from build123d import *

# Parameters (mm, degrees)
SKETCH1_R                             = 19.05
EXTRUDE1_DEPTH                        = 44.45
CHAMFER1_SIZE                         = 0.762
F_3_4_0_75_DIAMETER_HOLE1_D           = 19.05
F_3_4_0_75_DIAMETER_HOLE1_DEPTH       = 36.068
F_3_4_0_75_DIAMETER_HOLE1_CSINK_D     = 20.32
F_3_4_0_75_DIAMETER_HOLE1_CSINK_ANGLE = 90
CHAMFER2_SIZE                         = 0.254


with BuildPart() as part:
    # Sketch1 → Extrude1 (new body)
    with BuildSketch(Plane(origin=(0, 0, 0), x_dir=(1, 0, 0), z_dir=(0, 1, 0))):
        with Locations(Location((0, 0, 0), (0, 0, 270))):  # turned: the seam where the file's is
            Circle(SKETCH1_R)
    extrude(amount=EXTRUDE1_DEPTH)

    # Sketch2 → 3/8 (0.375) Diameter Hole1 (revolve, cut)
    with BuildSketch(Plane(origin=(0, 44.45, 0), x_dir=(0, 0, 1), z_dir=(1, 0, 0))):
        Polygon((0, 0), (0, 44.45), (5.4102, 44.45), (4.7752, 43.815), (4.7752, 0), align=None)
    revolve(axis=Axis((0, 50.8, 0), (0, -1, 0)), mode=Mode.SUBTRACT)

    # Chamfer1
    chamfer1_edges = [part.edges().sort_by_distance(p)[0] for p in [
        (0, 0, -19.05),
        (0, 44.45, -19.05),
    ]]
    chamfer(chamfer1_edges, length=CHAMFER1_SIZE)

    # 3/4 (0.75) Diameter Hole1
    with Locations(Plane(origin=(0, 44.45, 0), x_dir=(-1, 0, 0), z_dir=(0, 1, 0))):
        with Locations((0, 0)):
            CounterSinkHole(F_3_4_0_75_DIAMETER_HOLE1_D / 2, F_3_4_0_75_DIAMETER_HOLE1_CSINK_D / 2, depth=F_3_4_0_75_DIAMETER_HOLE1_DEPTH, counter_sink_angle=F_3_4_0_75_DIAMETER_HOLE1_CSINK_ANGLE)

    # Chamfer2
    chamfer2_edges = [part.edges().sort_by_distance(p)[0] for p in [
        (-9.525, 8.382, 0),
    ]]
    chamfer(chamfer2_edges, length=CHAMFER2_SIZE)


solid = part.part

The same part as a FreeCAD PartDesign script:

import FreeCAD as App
import Part
import Sketcher
from FreeCAD import Vector
Q = App.Units.Quantity


def edges_at(feature, points):
    """Names of the edges that pass closest to the given points."""
    edges = feature.Shape.Edges
    near = lambda p: min(range(len(edges)), key=lambda i: edges[i].distToShape(Part.Vertex(*p))[0])
    return sorted({f"Edge{near(p) + 1}" for p in points})


def add_polygon(sketch, points):
    """Adds a closed chain of lines whose ends are joined by coincident constraints."""
    first, n = sketch.GeometryCount, len(points)
    for a, b in zip(points, points[1:] + points[:1]):
        sketch.addGeometry(Part.LineSegment(App.Vector(*a, 0), App.Vector(*b, 0)), False)
    for i in range(n):
        sketch.addConstraint(Sketcher.Constraint("Coincident", first + i, 2, first + (i + 1) % n, 1))

doc = App.newDocument("Part")
body = doc.addObject("PartDesign::Body", "Body")

# Sketch on XZ plane
sketch1 = body.newObject("Sketcher::SketchObject", "Sketch")
sketch1.AttachmentSupport = (doc.getObject("XZ_Plane"), [""])
sketch1.MapMode = "FlatFace"
sketch1.addGeometry(Part.Circle(Vector(0, 0, 0), Vector(0, 0, 1), 19), False)
sketch1.addConstraint([
    Sketcher.Constraint("Coincident", 0, 3, -1, 1),
    Sketcher.Constraint("Diameter", 0, Q("1.5 in")),
])
pad1 = body.newObject("PartDesign::Pad", "Pad")
pad1.Profile = sketch1
pad1.Length = Q("1.75 in")
pad1.Reversed = True

# Sketch on YZ plane
sketch2 = body.newObject("Sketcher::SketchObject", "Sketch001")
sketch2.AttachmentSupport = (doc.getObject("YZ_Plane"), [""])
sketch2.MapMode = "FlatFace"
add_polygon(sketch2, [(0, 0), (44.5, 0), (44.5, 4.8), (0.6, 4.8), (0, 5.4)])  # lines 0-4
sketch2.addConstraint([
    Sketcher.Constraint("Horizontal", 0),
    Sketcher.Constraint("Vertical", 1),
    Sketcher.Constraint("Horizontal", 2),
    Sketcher.Constraint("Vertical", 4),
    Sketcher.Constraint("Coincident", 4, 2, -1, 1),
    Sketcher.Constraint("Angle", 3, Q("135 deg")),
    Sketcher.Constraint("DistanceX", 0, 1, 0, 2, Q("1.75 in")),
    Sketcher.Constraint("DistanceX", 2, 2, 2, 1, Q("1.725 in")),
    Sketcher.Constraint("DistanceY", 1, 1, 1, 2, Q("0.188 in")),
])
groove = body.newObject("PartDesign::Groove", "Groove")
groove.Profile = sketch2
groove.ReferenceAxis = (sketch2, ["H_Axis"])
groove.Angle = 360
doc.recompute()

chamfer = body.newObject("PartDesign::Chamfer", "Chamfer")
chamfer.Base = (groove, edges_at(groove, [(0, 0, -19.05), (0, 44.45, -19.05)]))
chamfer.Size = Q("0.03 in")

# Sketch on XZ plane
sketch3 = body.newObject("Sketcher::SketchObject", "Sketch002")
sketch3.AttachmentSupport = (doc.getObject("XZ_Plane"), [""])
sketch3.MapMode = "FlatFace"
sketch3.AttachmentOffset = App.Placement(Vector(0, 0, -1.75 * 25.4), App.Rotation())
sketch3.addGeometry(Part.Circle(Vector(0, 0, 0), Vector(0, 0, 1), 10), False)
sketch3.addConstraint([
    Sketcher.Constraint("Coincident", 0, 3, -1, 1),
    Sketcher.Constraint("Diameter", 0, Q("0.75 in")),
])
doc.recompute()
hole = body.newObject("PartDesign::Hole", "Hole")
hole.Profile = sketch3
hole.ThreadType = "None"
hole.Diameter = Q("0.75 in")
hole.DepthType = "Dimension"
hole.Depth = Q("1.42 in")
hole.DrillPoint = "Flat"
hole.HoleCutType = "Countersink"
hole.HoleCutDiameter = Q("0.8 in")
hole.HoleCutCountersinkAngle = 90
hole.Reversed = True
doc.recompute()

chamfer2 = body.newObject("PartDesign::Chamfer", "Chamfer001")
chamfer2.Base = (hole, edges_at(hole, [(-9.525, 8.382, 0)]))
chamfer2.Size = Q("0.01 in")

doc.recompute()
